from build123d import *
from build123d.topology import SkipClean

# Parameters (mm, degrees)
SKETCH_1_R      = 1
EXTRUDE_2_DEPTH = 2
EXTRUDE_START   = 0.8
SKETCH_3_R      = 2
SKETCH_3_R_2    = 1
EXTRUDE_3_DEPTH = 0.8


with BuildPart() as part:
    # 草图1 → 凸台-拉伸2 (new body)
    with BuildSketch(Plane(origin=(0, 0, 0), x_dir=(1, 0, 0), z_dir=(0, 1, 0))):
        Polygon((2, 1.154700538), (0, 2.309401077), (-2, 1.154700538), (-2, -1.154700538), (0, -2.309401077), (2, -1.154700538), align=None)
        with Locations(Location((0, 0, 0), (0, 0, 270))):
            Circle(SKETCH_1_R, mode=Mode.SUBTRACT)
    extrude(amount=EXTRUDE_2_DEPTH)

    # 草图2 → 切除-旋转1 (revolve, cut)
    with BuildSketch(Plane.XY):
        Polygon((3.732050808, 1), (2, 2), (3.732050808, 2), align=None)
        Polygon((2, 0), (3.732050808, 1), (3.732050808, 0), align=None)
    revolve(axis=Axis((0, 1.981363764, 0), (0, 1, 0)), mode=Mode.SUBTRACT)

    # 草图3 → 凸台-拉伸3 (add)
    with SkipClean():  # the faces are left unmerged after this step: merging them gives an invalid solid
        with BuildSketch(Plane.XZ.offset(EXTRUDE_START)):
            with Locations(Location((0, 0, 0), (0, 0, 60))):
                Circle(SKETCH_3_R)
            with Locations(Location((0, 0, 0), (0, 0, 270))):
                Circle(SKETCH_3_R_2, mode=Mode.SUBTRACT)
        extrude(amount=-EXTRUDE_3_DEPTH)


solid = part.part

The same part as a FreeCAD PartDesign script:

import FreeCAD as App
import Part
import Sketcher
Q = App.Units.Quantity

doc = App.newDocument("Part")
params = doc.addObject("Spreadsheet::Sheet", "Params")
for row, (alias, value) in enumerate([
    ("sketch1_diameter", "2 mm"),
    ("pad1_length", "2 mm"),
    ("sketch2_height", "1 mm"),
    ("groove_angle", "360 deg"),
    ("sketch3_diameter", "4 mm"),
    ("sketch3_diameter2", "2 mm"),
    ("pad2_length", "0.8 mm"),
], start=1):
    params.set(f"A{row}", alias)
    params.set(f"B{row}", "=" + value)
    params.setAlias(f"B{row}", alias)

body = doc.addObject("PartDesign::Body", "Body")

sketch1 = body.newObject("Sketcher::SketchObject", "Sketch")
sketch1.AttachmentSupport = (doc.getObject("XZ_Plane"), [""])
sketch1.MapMode = "FlatFace"
sketch1.addGeometry([
    Part.LineSegment(App.Vector(2, -1.2, 0), App.Vector(0, -2.3, 0)),
    Part.LineSegment(App.Vector(0, -2.3, 0), App.Vector(-2, -1.2, 0)),
    Part.LineSegment(App.Vector(-2, -1.2, 0), App.Vector(-2, 1.2, 0)),
    Part.LineSegment(App.Vector(-2, 1.2, 0), App.Vector(0, 2.3, 0)),
    Part.LineSegment(App.Vector(0, 2.3, 0), App.Vector(2, 1.2, 0)),
    Part.LineSegment(App.Vector(2, 1.2, 0), App.Vector(2, -1.2, 0)),
    Part.Circle(App.Vector(0, 0, 0), App.Vector(0, 0, 1), 1),
], False)
sketch1.addConstraint([
    Sketcher.Constraint("Coincident", 0, 2, 1, 1),
    Sketcher.Constraint("Coincident", 1, 2, 2, 1),
    Sketcher.Constraint("Coincident", 2, 2, 3, 1),
    Sketcher.Constraint("Coincident", 3, 2, 4, 1),
    Sketcher.Constraint("Coincident", 4, 2, 5, 1),
    Sketcher.Constraint("Coincident", 5, 2, 0, 1),
    Sketcher.Constraint("Vertical", 2),
    Sketcher.Constraint("Vertical", 5),
    Sketcher.Constraint("Coincident", 6, 3, -1, 1),
    Sketcher.Constraint("Symmetric", 0, 2, 3, 2, -1, 1),
    Sketcher.Constraint("Symmetric", 1, 2, 4, 2, -1, 1),
    Sketcher.Constraint("PointOnObject", 0, 2, -2),
    Sketcher.Constraint("Parallel", 0, 3),
    Sketcher.Constraint("Horizontal", 2, 2, 4, 2),
    Sketcher.Constraint("Diameter", 6, Q("2 mm")),
    Sketcher.Constraint("Angle", 0, Q("-150 deg")),
    Sketcher.Constraint("DistanceX", 1, 2, -1, 1, Q("2 mm")),
    Sketcher.Constraint("DistanceY", 2, 1, 2, 2, Q("2.309401 mm")),
])
sketch1.setExpression("Constraints[14]", "Params.sketch1_diameter")
pad1 = body.newObject("PartDesign::Pad", "Pad")
pad1.Profile = sketch1
pad1.setExpression("Length", "Params.pad1_length")
pad1.Reversed = True

sketch2 = body.newObject("Sketcher::SketchObject", "Sketch001")
sketch2.AttachmentSupport = (doc.getObject("XY_Plane"), [""])
sketch2.MapMode = "FlatFace"
sketch2.addGeometry([
    Part.LineSegment(App.Vector(2, 2, 0), App.Vector(3.7, 1, 0)),
    Part.LineSegment(App.Vector(3.7, 1, 0), App.Vector(3.7, 2, 0)),
    Part.LineSegment(App.Vector(3.7, 2, 0), App.Vector(2, 2, 0)),
    Part.LineSegment(App.Vector(3.7, 1, 0), App.Vector(2, 0, 0)),
    Part.LineSegment(App.Vector(2, 0, 0), App.Vector(3.7, 0, 0)),
    Part.LineSegment(App.Vector(3.7, 0, 0), App.Vector(3.7, 1, 0)),
], False)
sketch2.addConstraint([
    Sketcher.Constraint("Coincident", 0, 2, 1, 1),
    Sketcher.Constraint("Coincident", 1, 2, 2, 1),
    Sketcher.Constraint("Coincident", 2, 2, 0, 1),
    Sketcher.Constraint("Coincident", 3, 2, 4, 1),
    Sketcher.Constraint("Coincident", 4, 2, 5, 1),
    Sketcher.Constraint("Coincident", 5, 2, 3, 1),
    Sketcher.Constraint("Vertical", 1),
    Sketcher.Constraint("Horizontal", 2),
    Sketcher.Constraint("Horizontal", 4),
    Sketcher.Constraint("Vertical", 5),
    Sketcher.Constraint("Coincident", 5, 2, 0, 2),
    Sketcher.Constraint("PointOnObject", 3, 2, -1),
    Sketcher.Constraint("Vertical", 2, 2, 3, 2),
    Sketcher.Constraint("Equal", 1, 5),
    Sketcher.Constraint("DistanceY", 1, 1, 1, 2, Q("1 mm")),
    Sketcher.Constraint("Angle", 0, Q("-30 deg")),
    Sketcher.Constraint("DistanceX", -1, 1, 2, 2, Q("2 mm")),
])
sketch2.setExpression("Constraints[14]", "Params.sketch2_height")
groove = body.newObject("PartDesign::Groove", "Groove")
groove.Profile = sketch2
groove.ReferenceAxis = (sketch2, ["V_Axis"])
groove.setExpression("Angle", "Params.groove_angle")

sketch3 = body.newObject("Sketcher::SketchObject", "Sketch002")
sketch3.AttachmentSupport = (doc.getObject("XZ_Plane"), [""])
sketch3.MapMode = "FlatFace"
sketch3.AttachmentOffset = App.Placement(App.Vector(0, 0, 0.8), App.Rotation())
sketch3.addGeometry([
    Part.Circle(App.Vector(0, 0, 0), App.Vector(0, 0, 1), 2),
    Part.Circle(App.Vector(0, 0, 0), App.Vector(0, 0, 1), 1),
], False)
sketch3.addConstraint([
    Sketcher.Constraint("Coincident", 0, 3, -1, 1),
    Sketcher.Constraint("Coincident", 1, 3, -1, 1),
    Sketcher.Constraint("Diameter", 0, Q("4 mm")),
    Sketcher.Constraint("Diameter", 1, Q("2 mm")),
])
sketch3.setExpression("Constraints[2]", "Params.sketch3_diameter")
sketch3.setExpression("Constraints[3]", "Params.sketch3_diameter2")
pad2 = body.newObject("PartDesign::Pad", "Pad001")
pad2.Profile = sketch3
pad2.setExpression("Length", "Params.pad2_length")
pad2.Reversed = True

doc.recompute()
